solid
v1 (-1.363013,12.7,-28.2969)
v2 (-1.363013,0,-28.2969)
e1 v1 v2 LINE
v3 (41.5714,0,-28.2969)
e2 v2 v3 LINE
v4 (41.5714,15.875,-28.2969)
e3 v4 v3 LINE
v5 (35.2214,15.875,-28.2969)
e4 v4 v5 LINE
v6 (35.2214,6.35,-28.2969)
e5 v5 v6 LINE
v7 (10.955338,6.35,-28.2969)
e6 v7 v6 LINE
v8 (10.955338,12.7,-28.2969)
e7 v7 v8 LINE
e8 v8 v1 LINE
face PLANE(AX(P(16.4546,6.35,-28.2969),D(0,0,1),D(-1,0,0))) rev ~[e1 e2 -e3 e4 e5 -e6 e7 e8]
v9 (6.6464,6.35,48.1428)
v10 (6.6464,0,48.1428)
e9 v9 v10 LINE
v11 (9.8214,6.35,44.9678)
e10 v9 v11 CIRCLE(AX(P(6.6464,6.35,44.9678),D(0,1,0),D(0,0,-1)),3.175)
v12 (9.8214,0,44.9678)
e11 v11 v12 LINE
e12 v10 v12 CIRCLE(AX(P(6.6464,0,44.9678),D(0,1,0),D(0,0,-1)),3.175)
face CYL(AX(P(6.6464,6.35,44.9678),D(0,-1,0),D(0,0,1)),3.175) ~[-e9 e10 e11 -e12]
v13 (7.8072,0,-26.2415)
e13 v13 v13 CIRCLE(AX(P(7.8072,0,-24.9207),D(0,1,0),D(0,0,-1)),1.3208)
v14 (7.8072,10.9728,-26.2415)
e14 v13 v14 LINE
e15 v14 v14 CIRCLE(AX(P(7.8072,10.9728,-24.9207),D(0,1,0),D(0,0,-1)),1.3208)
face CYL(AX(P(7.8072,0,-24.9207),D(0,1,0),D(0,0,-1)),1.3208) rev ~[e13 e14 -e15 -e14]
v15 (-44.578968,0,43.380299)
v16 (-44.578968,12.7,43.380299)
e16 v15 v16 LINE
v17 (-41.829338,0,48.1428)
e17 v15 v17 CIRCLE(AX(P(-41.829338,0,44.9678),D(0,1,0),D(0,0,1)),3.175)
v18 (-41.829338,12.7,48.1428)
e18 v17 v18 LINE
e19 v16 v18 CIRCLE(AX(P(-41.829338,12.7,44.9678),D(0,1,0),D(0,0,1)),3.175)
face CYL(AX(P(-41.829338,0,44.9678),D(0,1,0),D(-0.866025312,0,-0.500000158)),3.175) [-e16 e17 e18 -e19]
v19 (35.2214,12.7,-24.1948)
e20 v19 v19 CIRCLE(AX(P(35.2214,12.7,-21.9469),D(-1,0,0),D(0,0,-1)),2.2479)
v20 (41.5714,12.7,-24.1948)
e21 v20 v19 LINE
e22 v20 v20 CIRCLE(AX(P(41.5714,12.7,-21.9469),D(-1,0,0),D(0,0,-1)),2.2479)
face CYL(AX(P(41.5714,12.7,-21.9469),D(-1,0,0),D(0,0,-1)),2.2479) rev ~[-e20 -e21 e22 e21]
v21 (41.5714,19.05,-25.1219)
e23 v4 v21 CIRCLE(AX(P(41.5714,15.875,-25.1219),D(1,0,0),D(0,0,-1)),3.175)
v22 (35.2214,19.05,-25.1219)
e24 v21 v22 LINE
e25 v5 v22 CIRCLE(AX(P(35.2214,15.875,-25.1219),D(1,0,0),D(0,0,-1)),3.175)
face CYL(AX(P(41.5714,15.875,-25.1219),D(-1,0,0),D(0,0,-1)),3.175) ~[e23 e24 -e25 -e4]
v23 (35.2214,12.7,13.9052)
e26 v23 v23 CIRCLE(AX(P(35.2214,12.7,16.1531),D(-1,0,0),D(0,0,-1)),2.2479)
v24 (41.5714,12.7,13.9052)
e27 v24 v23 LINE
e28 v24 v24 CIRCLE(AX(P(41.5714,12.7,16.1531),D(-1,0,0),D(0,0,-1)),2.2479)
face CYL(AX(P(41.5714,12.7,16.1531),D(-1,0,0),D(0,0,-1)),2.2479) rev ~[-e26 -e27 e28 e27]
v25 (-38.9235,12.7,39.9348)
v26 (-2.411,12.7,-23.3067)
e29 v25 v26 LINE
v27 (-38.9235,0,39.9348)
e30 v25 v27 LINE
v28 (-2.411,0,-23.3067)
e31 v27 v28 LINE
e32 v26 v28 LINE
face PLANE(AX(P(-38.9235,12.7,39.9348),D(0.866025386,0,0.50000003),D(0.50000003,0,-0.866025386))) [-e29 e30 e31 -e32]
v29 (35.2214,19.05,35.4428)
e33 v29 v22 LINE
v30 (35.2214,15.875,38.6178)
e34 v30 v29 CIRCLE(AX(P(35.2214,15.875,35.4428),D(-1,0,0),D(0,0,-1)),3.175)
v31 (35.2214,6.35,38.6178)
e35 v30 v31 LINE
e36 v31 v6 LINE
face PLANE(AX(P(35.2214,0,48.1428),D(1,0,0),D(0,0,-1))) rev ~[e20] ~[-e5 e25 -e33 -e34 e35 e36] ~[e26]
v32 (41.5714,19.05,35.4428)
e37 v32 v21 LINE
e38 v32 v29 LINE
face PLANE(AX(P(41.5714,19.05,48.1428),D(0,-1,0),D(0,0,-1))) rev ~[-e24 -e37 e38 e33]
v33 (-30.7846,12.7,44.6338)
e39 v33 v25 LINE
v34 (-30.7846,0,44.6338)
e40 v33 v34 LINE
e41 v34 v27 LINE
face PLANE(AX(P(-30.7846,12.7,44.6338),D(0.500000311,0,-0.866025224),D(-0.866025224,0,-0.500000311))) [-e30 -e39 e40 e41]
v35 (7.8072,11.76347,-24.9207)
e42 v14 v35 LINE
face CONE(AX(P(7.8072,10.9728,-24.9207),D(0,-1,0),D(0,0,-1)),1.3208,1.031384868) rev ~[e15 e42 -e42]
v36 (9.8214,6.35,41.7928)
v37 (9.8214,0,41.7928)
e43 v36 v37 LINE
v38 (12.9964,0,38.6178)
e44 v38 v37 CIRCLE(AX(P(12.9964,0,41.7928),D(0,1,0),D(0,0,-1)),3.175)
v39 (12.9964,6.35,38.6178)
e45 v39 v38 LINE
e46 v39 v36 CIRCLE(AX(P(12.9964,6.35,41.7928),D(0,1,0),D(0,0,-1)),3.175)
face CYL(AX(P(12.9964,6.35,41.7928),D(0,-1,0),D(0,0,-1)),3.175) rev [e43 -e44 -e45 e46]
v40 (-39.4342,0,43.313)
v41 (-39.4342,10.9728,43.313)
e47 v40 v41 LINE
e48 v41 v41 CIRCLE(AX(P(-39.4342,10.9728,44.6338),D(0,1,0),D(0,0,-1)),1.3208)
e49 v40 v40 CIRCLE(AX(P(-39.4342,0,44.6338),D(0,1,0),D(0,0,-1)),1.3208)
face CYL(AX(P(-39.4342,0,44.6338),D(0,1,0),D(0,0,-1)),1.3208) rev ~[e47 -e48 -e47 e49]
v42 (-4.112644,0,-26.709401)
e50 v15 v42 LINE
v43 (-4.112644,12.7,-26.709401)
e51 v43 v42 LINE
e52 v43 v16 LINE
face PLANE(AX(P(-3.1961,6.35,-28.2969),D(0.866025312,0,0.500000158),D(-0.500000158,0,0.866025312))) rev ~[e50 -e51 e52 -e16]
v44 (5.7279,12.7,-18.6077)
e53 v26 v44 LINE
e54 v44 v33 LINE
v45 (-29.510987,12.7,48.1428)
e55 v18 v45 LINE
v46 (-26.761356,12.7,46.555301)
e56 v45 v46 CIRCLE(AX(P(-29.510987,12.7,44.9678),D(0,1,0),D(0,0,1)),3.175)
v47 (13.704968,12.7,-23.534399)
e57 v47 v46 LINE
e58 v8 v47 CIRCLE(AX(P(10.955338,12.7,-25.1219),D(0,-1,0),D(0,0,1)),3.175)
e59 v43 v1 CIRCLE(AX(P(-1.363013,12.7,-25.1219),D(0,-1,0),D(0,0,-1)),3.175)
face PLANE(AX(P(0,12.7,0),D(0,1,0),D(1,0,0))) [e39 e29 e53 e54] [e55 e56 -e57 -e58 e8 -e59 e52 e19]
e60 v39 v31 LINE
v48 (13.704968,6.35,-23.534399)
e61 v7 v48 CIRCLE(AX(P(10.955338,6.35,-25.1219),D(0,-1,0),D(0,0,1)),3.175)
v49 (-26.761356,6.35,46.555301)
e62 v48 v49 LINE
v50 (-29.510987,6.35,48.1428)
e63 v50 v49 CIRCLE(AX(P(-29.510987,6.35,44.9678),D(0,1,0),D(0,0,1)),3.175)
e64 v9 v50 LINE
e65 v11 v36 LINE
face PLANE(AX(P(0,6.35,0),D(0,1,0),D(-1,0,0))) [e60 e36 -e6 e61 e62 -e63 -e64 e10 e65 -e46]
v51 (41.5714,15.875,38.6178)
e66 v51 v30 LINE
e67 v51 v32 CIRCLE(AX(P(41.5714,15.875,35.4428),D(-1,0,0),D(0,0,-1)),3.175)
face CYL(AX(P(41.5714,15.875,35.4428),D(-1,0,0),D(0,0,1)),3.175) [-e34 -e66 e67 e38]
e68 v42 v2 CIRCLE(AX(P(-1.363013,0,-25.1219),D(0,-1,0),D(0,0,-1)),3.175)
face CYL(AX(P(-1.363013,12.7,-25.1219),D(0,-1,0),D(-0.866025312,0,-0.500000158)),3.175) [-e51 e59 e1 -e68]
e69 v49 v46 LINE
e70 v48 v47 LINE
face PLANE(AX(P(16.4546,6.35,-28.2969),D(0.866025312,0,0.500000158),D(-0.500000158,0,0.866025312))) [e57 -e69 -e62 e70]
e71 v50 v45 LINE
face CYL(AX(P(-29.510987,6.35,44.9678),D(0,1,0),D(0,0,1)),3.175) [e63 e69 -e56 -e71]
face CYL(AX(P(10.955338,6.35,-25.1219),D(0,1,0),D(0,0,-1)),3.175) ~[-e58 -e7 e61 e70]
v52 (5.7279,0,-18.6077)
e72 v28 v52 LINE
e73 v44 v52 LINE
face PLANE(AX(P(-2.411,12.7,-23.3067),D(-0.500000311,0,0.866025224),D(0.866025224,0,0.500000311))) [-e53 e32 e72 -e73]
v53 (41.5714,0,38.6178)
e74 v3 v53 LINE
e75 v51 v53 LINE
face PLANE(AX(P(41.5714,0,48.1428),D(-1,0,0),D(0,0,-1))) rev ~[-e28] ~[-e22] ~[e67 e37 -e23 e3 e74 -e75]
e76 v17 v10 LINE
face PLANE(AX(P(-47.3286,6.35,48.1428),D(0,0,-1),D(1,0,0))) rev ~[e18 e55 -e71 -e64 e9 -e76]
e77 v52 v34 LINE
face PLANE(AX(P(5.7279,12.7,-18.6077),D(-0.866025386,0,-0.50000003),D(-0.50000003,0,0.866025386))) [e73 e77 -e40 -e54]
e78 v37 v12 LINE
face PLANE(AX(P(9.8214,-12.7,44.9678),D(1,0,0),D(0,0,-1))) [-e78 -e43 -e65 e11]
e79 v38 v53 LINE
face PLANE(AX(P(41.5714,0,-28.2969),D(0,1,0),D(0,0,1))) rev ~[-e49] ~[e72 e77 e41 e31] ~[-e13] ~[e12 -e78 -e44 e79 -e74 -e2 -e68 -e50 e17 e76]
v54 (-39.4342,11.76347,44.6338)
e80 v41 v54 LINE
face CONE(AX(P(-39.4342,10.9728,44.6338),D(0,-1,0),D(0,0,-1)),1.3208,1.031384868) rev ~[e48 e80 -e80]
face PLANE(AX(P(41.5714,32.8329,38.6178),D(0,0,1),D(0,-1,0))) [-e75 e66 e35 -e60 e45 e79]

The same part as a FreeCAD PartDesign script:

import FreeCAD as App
import Part
import Sketcher

V = App.Vector
Q = App.Units.Quantity


def edges_at(feature, points):
    """Names of the edges that pass closest to the given points."""
    edges = feature.Shape.Edges
    near = lambda p: min(range(len(edges)), key=lambda i: edges[i].distToShape(Part.Vertex(*p))[0])
    return sorted({f"Edge{near(p) + 1}" for p in points})


def add_polygon(sketch, points):
    """Adds a closed chain of lines whose ends are joined by coincident constraints."""
    first, n = sketch.GeometryCount, len(points)
    for a, b in zip(points, points[1:] + points[:1]):
        sketch.addGeometry(Part.LineSegment(App.Vector(*a, 0), App.Vector(*b, 0)), False)
    for i in range(n):
        sketch.addConstraint(Sketcher.Constraint("Coincident", first + i, 2, first + (i + 1) % n, 1))

doc = App.newDocument("Part")
body = doc.addObject("PartDesign::Body", "Body")

sketch1 = body.newObject("Sketcher::SketchObject", "Sketch")
sketch1.AttachmentSupport = (doc.getObject("XZ_Plane"), [""])
sketch1.MapMode = "FlatFace"
add_polygon(sketch1, [(-3.1961, -28.2969), (-47.3286, 48.1428), (41.5714, 48.1428), (41.5714, -28.2969)])
sketch1.addConstraint([
    Sketcher.Constraint("Horizontal", 1),
    Sketcher.Constraint("Vertical", 2),
    Sketcher.Constraint("Horizontal", 3),
    Sketcher.Constraint("DistanceX", 1, 1, 1, 2, Q("3.5 in")),
    Sketcher.Constraint("Distance", 0, Q("3.475 in")),
    Sketcher.Constraint("Angle", 0, Q("120 deg")),
    Sketcher.Constraint("DistanceX", 0, 2, -1, 1, Q("47.3286 mm")),
    Sketcher.Constraint("DistanceY", -1, 1, 0, 2, Q("48.1428 mm")),
])
pad1 = body.newObject("PartDesign::Pad", "Pad")
pad1.Profile = sketch1
pad1.Length = Q("0.25 in")
pad1.Reversed = True

sketch2 = body.newObject("Sketcher::SketchObject", "Sketch001")
sketch2.AttachmentSupport = (doc.getObject("YZ_Plane"), [""])
sketch2.MapMode = "FlatFace"
sketch2.AttachmentOffset = App.Placement(V(0, 0, 41.5714), App.Rotation())
add_polygon(sketch2, [(19.05, -28.2969), (19.05, 48.1428), (6.35, 48.1428), (6.35, -28.2969)])
add_polygon(sketch2, [(0, -28.2969), (0, 48.1428), (-12.7, 48.1428), (-12.7, -28.2969)])
sketch2.addConstraint([
    Sketcher.Constraint("Vertical", 0),
    Sketcher.Constraint("Horizontal", 1),
    Sketcher.Constraint("Vertical", 2),
    Sketcher.Constraint("Horizontal", 3),
    Sketcher.Constraint("Vertical", 4),
    Sketcher.Constraint("Horizontal", 5),
    Sketcher.Constraint("Vertical", 6),
    Sketcher.Constraint("Horizontal", 7),
    Sketcher.Constraint("PointOnObject", 4, 2, -2),
    Sketcher.Constraint("Horizontal", 1, 2, 4, 2),
    Sketcher.Constraint("Horizontal", 3, 2, 6, 2),
    Sketcher.Constraint("Equal", 3, 5),
    Sketcher.Constraint("DistanceX", 1, 2, 1, 1, Q("0.5 in")),
    Sketcher.Constraint("DistanceX", -1, 1, 0, 2, Q("0.75 in")),
    Sketcher.Constraint("DistanceY", 0, 1, 0, 2, Q("76.4397 mm")),
    Sketcher.Constraint("DistanceY", -1, 1, 0, 2, Q("48.1428 mm")),
])
pad2 = body.newObject("PartDesign::Pad", "Pad001")
pad2.Profile = sketch2
pad2.Length = Q("0.25 in")
pad2.Reversed = True

sketch3 = body.newObject("Sketcher::SketchObject", "Sketch002")
sketch3.AttachmentSupport = (doc.getObject("XZ_Plane"), [""])
sketch3.MapMode = "FlatFace"
sketch3.AttachmentOffset = App.Placement(V(0, 0, -0.25 * 25.4), App.Rotation())
add_polygon(sketch3, [(-3.1961, -28.2969), (-47.3286, 48.1428), (-27.6779, 48.1428), (16.4546, -28.2969)])
sketch3.addConstraint([
    Sketcher.Constraint("Horizontal", 1),
    Sketcher.Constraint("Horizontal", 3),
    Sketcher.Constraint("Parallel", 0, 2),
    Sketcher.Constraint("Angle", 0, Q("120 deg")),
    Sketcher.Constraint("Distance", 0, Q("3.475 in")),
    Sketcher.Constraint("DistanceX", 1, 1, 1, 2, Q("19.6507 mm")),
    Sketcher.Constraint("DistanceX", 0, 2, -1, 1, Q("47.3286 mm")),
    Sketcher.Constraint("DistanceY", -1, 1, 0, 2, Q("48.1428 mm")),
])
pad3 = body.newObject("PartDesign::Pad", "Pad002")
pad3.Profile = sketch3
pad3.Length = Q("0.25 in")
pad3.Reversed = True

sketch4 = body.newObject("Sketcher::SketchObject", "Sketch003")
sketch4.AttachmentSupport = (doc.getObject("XZ_Plane"), [""])
sketch4.MapMode = "FlatFace"
sketch4.AttachmentOffset = App.Placement(V(0, 0, -0.5 * 25.4), App.Rotation())
add_polygon(sketch4, [(-2.411, -23.3067), (-38.9235, 39.9348), (-30.7846, 44.6338), (5.7279, -18.6077)])
sketch4.addConstraint([
    Sketcher.Constraint("Perpendicular", 0, 1),
    Sketcher.Constraint("Perpendicular", 1, 2),
    Sketcher.Constraint("Perpendicular", 2, 3),
    Sketcher.Constraint("Distance", 1, Q("0.37 in")),
    Sketcher.Constraint("Distance", 0, Q("2.875 in")),
    Sketcher.Constraint("Angle", 0, Q("120 deg")),
    Sketcher.Constraint("DistanceX", 1, 2, -1, 1, Q("1.212 in")),
    Sketcher.Constraint("DistanceY", -1, 1, 0, 2, Q("39.9348 mm")),
])
pocket1 = body.newObject("PartDesign::Pocket", "Pocket")
pocket1.Profile = sketch4
pocket1.Length = Q("1 in")
pocket1.Reversed = True

sketch5 = body.newObject("Sketcher::SketchObject", "Sketch004")
sketch5.AttachmentSupport = (doc.getObject("YZ_Plane"), [""])
sketch5.MapMode = "FlatFace"
sketch5.AttachmentOffset = App.Placement(V(0, 0, 41.5714), App.Rotation())
sketch5.addGeometry([
    Part.Circle(V(12.7, -21.9469, 0), V(0, 0, 1), 2.2479),
    Part.Circle(V(12.7, 16.1531, 0), V(0, 0, 1), 2.2479),
], False)
sketch5.addConstraint([
    Sketcher.Constraint("Equal", 0, 1),
    Sketcher.Constraint("Vertical", 0, 3, 1, 3),
    Sketcher.Constraint("Diameter", 0, Q("0.177 in")),
    Sketcher.Constraint("DistanceX", -1, 1, 0, 3, Q("0.5 in")),
    Sketcher.Constraint("DistanceY", 0, 3, 1, 3, Q("1.5 in")),
    Sketcher.Constraint("DistanceY", 0, 3, -1, 1, Q("21.947 mm")),
])
doc.recompute()
hole = body.newObject("PartDesign::Hole", "Hole")
hole.Profile = sketch5
hole.ThreadType = "None"
hole.Diameter = Q("0.177 in")
hole.DepthType = "Dimension"
hole.Depth = Q("1 in")
hole.DrillPoint = "Angled"
hole.DrillPointAngle = 118.188
doc.recompute()

fillet = body.newObject("PartDesign::Fillet", "Fillet")
fillet.Base = (hole, edges_at(hole, [(-47.329, 6.35, 48.143)]))
fillet.Radius = Q("0.125 in")
doc.recompute()

fillet2 = body.newObject("PartDesign::Fillet", "Fillet001")
fillet2.Base = (fillet, edges_at(fillet, [(-3.196, 6.35, -28.297)]))
fillet2.Radius = Q("0.125 in")
doc.recompute()

fillet3 = body.newObject("PartDesign::Fillet", "Fillet002")
fillet3.Base = (fillet2, edges_at(fillet2, [
    (38.396, -12.7, -28.297),
    (38.396, -12.7, 48.143),
    (38.396, 19.05, -28.297),
    (38.396, 19.05, 48.143),
    (16.455, 9.525, -28.297),
    (-27.678, 9.525, 48.143),
]))
fillet3.Radius = Q("0.125 in")

sketch6 = body.newObject("Sketcher::SketchObject", "Sketch005")
sketch6.AttachmentSupport = (doc.getObject("YZ_Plane"), [""])
sketch6.MapMode = "FlatFace"
sketch6.AttachmentOffset = App.Placement(V(0, 0, 41.5714), App.Rotation())
add_polygon(sketch6, [(32.8329, 38.6178), (32.8329, 94.5466), (-21.3732, 94.5466), (-21.3732, 38.6178)])
sketch6.addConstraint([
    Sketcher.Constraint("Vertical", 0),
    Sketcher.Constraint("Horizontal", 1),
    Sketcher.Constraint("Vertical", 2),
    Sketcher.Constraint("Horizontal", 3),
    Sketcher.Constraint("DistanceX", 1, 2, 1, 1, Q("2.1341 in")),
    Sketcher.Constraint("DistanceY", 0, 1, 0, 2, Q("55.9288 mm")),
    Sketcher.Constraint("DistanceY", -1, 1, 0, 2, Q("3.7223 in")),
    Sketcher.Constraint("DistanceX", -1, 1, 0, 2, Q("32.833 mm")),
])
pocket2 = body.newObject("PartDesign::Pocket", "Pocket001")
pocket2.Profile = sketch6
pocket2.Length = Q("1.25 in")
doc.recompute()

fillet4 = body.newObject("PartDesign::Fillet", "Fillet003")
fillet4.Base = (pocket2, edges_at(pocket2, [(9.821, 3.175, 48.143)]))
fillet4.Radius = Q("0.125 in")
doc.recompute()

fillet5 = body.newObject("PartDesign::Fillet", "Fillet004")
fillet5.Base = (fillet4, edges_at(fillet4, [(38.396, 19.05, 38.618), (38.396, -12.7, 38.618)]))
fillet5.Radius = Q("0.125 in")
doc.recompute()

fillet6 = body.newObject("PartDesign::Fillet", "Fillet005")
fillet6.Base = (fillet5, edges_at(fillet5, [(9.821, 3.175, 38.618)]))
fillet6.Radius = Q("0.125 in")

sketch7 = body.newObject("Sketcher::SketchObject", "Sketch006")
sketch7.AttachmentSupport = (doc.getObject("YZ_Plane"), [""])
sketch7.MapMode = "FlatFace"
sketch7.AttachmentOffset = App.Placement(V(0, 0, 41.5714), App.Rotation())
add_polygon(sketch7, [(0, 43.2279), (-19.2992, 43.2279), (-19.2992, -40.4392), (0, -40.4392)])
sketch7.addConstraint([
    Sketcher.Constraint("Horizontal", 0),
    Sketcher.Constraint("Vertical", 1),
    Sketcher.Constraint("Horizontal", 2),
    Sketcher.Constraint("Vertical", 3),
    Sketcher.Constraint("PointOnObject", 2, 2, -2),
    Sketcher.Constraint("DistanceX", 0, 2, 0, 1, Q("0.7598 in")),
    Sketcher.Constraint("DistanceY", 1, 2, 1, 1, Q("83.667 mm")),
    Sketcher.Constraint("DistanceY", 1, 2, -1, 1, Q("1.5921 in")),
])
pocket3 = body.newObject("PartDesign::Pocket", "Pocket002")
pocket3.Profile = sketch7
pocket3.Length = Q("1.25 in")

sketch8 = body.newObject("Sketcher::SketchObject", "Sketch007")
sketch8.AttachmentSupport = (doc.getObject("XZ_Plane"), [""])
sketch8.MapMode = "FlatFace"
sketch8.addGeometry([
    Part.Circle(V(7.8072, -24.9207, 0), V(0, 0, 1), 1.3208),
    Part.Circle(V(-39.4342, 44.6338, 0), V(0, 0, 1), 1.3208),
], False)
sketch8.addConstraint([
    Sketcher.Constraint("Equal", 0, 1),
    Sketcher.Constraint("Diameter", 0, Q("0.104 in")),
    Sketcher.Constraint("DistanceX", 1, 3, 0, 3, Q("1.8599 in")),
    Sketcher.Constraint("DistanceX", -1, 1, 0, 3, Q("7.8072 mm")),
    Sketcher.Constraint("DistanceY", 0, 3, -1, 1, Q("24.9207 mm")),
    Sketcher.Constraint("DistanceY", -1, 1, 1, 3, Q("44.6338 mm")),
])
doc.recompute()
hole2 = body.newObject("PartDesign::Hole", "Hole001")
hole2.Profile = sketch8
hole2.ThreadType = "None"
hole2.Diameter = Q("0.104 in")
hole2.DepthType = "Dimension"
hole2.Depth = Q("0.432 in")
hole2.DrillPoint = "Angled"
hole2.DrillPointAngle = 118.188

doc.recompute()
